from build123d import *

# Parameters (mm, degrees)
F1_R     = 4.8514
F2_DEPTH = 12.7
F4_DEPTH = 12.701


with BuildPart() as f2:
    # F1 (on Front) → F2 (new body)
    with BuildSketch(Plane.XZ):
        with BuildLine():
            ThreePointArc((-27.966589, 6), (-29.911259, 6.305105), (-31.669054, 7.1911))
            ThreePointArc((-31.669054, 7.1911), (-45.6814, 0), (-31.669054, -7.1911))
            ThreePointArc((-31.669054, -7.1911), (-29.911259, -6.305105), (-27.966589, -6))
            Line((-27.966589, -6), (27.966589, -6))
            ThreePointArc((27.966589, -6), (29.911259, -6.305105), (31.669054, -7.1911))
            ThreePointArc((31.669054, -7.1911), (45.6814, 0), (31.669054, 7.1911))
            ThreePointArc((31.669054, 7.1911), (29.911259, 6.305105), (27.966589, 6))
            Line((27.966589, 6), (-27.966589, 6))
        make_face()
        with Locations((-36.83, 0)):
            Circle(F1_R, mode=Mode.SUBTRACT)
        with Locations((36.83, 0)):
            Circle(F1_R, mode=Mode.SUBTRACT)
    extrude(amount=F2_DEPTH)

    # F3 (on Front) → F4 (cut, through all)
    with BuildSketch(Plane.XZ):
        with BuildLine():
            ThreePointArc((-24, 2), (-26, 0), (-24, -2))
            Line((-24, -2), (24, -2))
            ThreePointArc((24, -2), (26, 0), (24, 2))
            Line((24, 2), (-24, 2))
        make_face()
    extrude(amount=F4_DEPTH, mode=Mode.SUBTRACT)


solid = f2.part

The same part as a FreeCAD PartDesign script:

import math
import FreeCAD as App
import Part
import Sketcher
Q = App.Units.Quantity

doc = App.newDocument("Part")
params = doc.addObject("Spreadsheet::Sheet", "Params")
for row, (alias, value) in enumerate([
    ("sketch1_radius", "0.2500001 in"),
    ("sketch1_diameter", "0.382 in"),
    ("pad1_length", "0.5 in"),
], start=1):
    params.set(f"A{row}", alias)
    params.set(f"B{row}", "=" + value)
    params.setAlias(f"B{row}", alias)

body = doc.addObject("PartDesign::Body", "Body")

# Sketch on XZ plane
sketch1 = body.newObject("Sketcher::SketchObject", "Sketch")
sketch1.AttachmentSupport = (doc.getObject("XZ_Plane"), [""])
sketch1.MapMode = "FlatFace"
sketch1.addGeometry(Part.ArcOfCircle(Part.Circle(App.Vector(-28, 12.4, 0), App.Vector(0, 0, 1), 6.4), math.radians(-126), math.radians(-90)), False)
sketch1.addGeometry(Part.ArcOfCircle(Part.Circle(App.Vector(-36.8, 0, 0), App.Vector(0, 0, 1), 8.9), math.radians(54), math.radians(306)), False)
sketch1.addGeometry(Part.ArcOfCircle(Part.Circle(App.Vector(-28, -12.4, 0), App.Vector(0, 0, 1), 6.4), math.radians(90), math.radians(126)), False)
sketch1.addGeometry(Part.LineSegment(App.Vector(-28, -6, 0), App.Vector(28, -6, 0)), False)
sketch1.addGeometry(Part.ArcOfCircle(Part.Circle(App.Vector(28, -12.4, 0), App.Vector(0, 0, 1), 6.4), math.radians(54), math.radians(90)), False)
sketch1.addGeometry(Part.ArcOfCircle(Part.Circle(App.Vector(36.8, 0, 0), App.Vector(0, 0, 1), 8.9), math.radians(-126), math.radians(126)), False)
sketch1.addGeometry(Part.ArcOfCircle(Part.Circle(App.Vector(28, 12.4, 0), App.Vector(0, 0, 1), 6.4), math.radians(-90), math.radians(-54)), False)
sketch1.addGeometry(Part.LineSegment(App.Vector(28, 6, 0), App.Vector(-28, 6, 0)), False)
sketch1.addGeometry(Part.Circle(App.Vector(-36.8, 0, 0), App.Vector(0, 0, 1), 4.9), False)
sketch1.addGeometry(Part.Circle(App.Vector(36.8, 0, 0), App.Vector(0, 0, 1), 4.9), False)
sketch1.addConstraint(Sketcher.Constraint("Tangent", 0, 1, 1, 1))
sketch1.addConstraint(Sketcher.Constraint("Tangent", 1, 2, 2, 2))
sketch1.addConstraint(Sketcher.Constraint("Tangent", 2, 1, 3, 1))
sketch1.addConstraint(Sketcher.Constraint("Tangent", 3, 2, 4, 2))
sketch1.addConstraint(Sketcher.Constraint("Tangent", 4, 1, 5, 1))
sketch1.addConstraint(Sketcher.Constraint("Tangent", 5, 2, 6, 2))
sketch1.addConstraint(Sketcher.Constraint("Tangent", 6, 1, 7, 1))
sketch1.addConstraint(Sketcher.Constraint("Tangent", 7, 2, 0, 2))
sketch1.addConstraint(Sketcher.Constraint("Horizontal", 3))
sketch1.addConstraint(Sketcher.Constraint("Horizontal", 7))
sketch1.addConstraint(Sketcher.Constraint("Coincident", 8, 3, 1, 3))
sketch1.addConstraint(Sketcher.Constraint("Coincident", 9, 3, 5, 3))
sketch1.addConstraint(Sketcher.Constraint("Equal", 0, 2))
sketch1.addConstraint(Sketcher.Constraint("Equal", 2, 4))
sketch1.addConstraint(Sketcher.Constraint("Equal", 1, 5))
sketch1.addConstraint(Sketcher.Constraint("Equal", 4, 6))
sketch1.addConstraint(Sketcher.Constraint("Equal", 8, 9))
sketch1.addConstraint(Sketcher.Constraint("Symmetric", 0, 3, 4, 3, -1, 1))
sketch1.addConstraint(Sketcher.Constraint("Symmetric", 1, 3, 5, 3, -2))
sketch1.addConstraint(Sketcher.Constraint("Radius", 0, Q("0.2500001 in")))
sketch1.addConstraint(Sketcher.Constraint("Diameter", 8, Q("0.382 in")))
sketch1.addConstraint(Sketcher.Constraint("DistanceX", 1, 3, 5, 3, Q("2.9 in")))
sketch1.addConstraint(Sketcher.Constraint("Radius", 1, 8.8514))
sketch1.addConstraint(Sketcher.Constraint("DistanceY", -1, 1, 0, 3, 12.350002))
sketch1.setExpression("Constraints[19]", "Params.sketch1_radius")
sketch1.setExpression("Constraints[20]", "Params.sketch1_diameter")
pad1 = body.newObject("PartDesign::Pad", "Pad")
pad1.Profile = sketch1
pad1.setExpression("Length", "Params.pad1_length")

# Sketch on XZ plane
sketch2 = body.newObject("Sketcher::SketchObject", "Sketch001")
sketch2.AttachmentSupport = (doc.getObject("XZ_Plane"), [""])
sketch2.MapMode = "FlatFace"
sketch2.addGeometry(Part.ArcOfCircle(Part.Circle(App.Vector(-24, 0, 0), App.Vector(0, 0, 1), 2), math.radians(90), math.radians(270)), False)
sketch2.addGeometry(Part.LineSegment(App.Vector(-24, -2, 0), App.Vector(24, -2, 0)), False)
sketch2.addGeometry(Part.ArcOfCircle(Part.Circle(App.Vector(24, 0, 0), App.Vector(0, 0, 1), 2), math.radians(-90), math.radians(90)), False)
sketch2.addGeometry(Part.LineSegment(App.Vector(24, 2, 0), App.Vector(-24, 2, 0)), False)
sketch2.addConstraint(Sketcher.Constraint("Tangent", 0, 2, 1, 1))
sketch2.addConstraint(Sketcher.Constraint("Tangent", 1, 2, 2, 1))
sketch2.addConstraint(Sketcher.Constraint("Tangent", 2, 2, 3, 1))
sketch2.addConstraint(Sketcher.Constraint("Tangent", 3, 2, 0, 1))
sketch2.addConstraint(Sketcher.Constraint("Horizontal", 1))
sketch2.addConstraint(Sketcher.Constraint("Horizontal", 3))
sketch2.addConstraint(Sketcher.Constraint("Symmetric", 0, 3, 2, 3, -1, 1))
sketch2.addConstraint(Sketcher.Constraint("Radius", 0, 2.0))
sketch2.addConstraint(Sketcher.Constraint("DistanceX", 1, 1, 1, 2, 48.0))
pocket1 = body.newObject("PartDesign::Pocket", "Pocket")
pocket1.Profile = sketch2
pocket1.Type = "ThroughAll"
pocket1.Reversed = True

doc.recompute()
